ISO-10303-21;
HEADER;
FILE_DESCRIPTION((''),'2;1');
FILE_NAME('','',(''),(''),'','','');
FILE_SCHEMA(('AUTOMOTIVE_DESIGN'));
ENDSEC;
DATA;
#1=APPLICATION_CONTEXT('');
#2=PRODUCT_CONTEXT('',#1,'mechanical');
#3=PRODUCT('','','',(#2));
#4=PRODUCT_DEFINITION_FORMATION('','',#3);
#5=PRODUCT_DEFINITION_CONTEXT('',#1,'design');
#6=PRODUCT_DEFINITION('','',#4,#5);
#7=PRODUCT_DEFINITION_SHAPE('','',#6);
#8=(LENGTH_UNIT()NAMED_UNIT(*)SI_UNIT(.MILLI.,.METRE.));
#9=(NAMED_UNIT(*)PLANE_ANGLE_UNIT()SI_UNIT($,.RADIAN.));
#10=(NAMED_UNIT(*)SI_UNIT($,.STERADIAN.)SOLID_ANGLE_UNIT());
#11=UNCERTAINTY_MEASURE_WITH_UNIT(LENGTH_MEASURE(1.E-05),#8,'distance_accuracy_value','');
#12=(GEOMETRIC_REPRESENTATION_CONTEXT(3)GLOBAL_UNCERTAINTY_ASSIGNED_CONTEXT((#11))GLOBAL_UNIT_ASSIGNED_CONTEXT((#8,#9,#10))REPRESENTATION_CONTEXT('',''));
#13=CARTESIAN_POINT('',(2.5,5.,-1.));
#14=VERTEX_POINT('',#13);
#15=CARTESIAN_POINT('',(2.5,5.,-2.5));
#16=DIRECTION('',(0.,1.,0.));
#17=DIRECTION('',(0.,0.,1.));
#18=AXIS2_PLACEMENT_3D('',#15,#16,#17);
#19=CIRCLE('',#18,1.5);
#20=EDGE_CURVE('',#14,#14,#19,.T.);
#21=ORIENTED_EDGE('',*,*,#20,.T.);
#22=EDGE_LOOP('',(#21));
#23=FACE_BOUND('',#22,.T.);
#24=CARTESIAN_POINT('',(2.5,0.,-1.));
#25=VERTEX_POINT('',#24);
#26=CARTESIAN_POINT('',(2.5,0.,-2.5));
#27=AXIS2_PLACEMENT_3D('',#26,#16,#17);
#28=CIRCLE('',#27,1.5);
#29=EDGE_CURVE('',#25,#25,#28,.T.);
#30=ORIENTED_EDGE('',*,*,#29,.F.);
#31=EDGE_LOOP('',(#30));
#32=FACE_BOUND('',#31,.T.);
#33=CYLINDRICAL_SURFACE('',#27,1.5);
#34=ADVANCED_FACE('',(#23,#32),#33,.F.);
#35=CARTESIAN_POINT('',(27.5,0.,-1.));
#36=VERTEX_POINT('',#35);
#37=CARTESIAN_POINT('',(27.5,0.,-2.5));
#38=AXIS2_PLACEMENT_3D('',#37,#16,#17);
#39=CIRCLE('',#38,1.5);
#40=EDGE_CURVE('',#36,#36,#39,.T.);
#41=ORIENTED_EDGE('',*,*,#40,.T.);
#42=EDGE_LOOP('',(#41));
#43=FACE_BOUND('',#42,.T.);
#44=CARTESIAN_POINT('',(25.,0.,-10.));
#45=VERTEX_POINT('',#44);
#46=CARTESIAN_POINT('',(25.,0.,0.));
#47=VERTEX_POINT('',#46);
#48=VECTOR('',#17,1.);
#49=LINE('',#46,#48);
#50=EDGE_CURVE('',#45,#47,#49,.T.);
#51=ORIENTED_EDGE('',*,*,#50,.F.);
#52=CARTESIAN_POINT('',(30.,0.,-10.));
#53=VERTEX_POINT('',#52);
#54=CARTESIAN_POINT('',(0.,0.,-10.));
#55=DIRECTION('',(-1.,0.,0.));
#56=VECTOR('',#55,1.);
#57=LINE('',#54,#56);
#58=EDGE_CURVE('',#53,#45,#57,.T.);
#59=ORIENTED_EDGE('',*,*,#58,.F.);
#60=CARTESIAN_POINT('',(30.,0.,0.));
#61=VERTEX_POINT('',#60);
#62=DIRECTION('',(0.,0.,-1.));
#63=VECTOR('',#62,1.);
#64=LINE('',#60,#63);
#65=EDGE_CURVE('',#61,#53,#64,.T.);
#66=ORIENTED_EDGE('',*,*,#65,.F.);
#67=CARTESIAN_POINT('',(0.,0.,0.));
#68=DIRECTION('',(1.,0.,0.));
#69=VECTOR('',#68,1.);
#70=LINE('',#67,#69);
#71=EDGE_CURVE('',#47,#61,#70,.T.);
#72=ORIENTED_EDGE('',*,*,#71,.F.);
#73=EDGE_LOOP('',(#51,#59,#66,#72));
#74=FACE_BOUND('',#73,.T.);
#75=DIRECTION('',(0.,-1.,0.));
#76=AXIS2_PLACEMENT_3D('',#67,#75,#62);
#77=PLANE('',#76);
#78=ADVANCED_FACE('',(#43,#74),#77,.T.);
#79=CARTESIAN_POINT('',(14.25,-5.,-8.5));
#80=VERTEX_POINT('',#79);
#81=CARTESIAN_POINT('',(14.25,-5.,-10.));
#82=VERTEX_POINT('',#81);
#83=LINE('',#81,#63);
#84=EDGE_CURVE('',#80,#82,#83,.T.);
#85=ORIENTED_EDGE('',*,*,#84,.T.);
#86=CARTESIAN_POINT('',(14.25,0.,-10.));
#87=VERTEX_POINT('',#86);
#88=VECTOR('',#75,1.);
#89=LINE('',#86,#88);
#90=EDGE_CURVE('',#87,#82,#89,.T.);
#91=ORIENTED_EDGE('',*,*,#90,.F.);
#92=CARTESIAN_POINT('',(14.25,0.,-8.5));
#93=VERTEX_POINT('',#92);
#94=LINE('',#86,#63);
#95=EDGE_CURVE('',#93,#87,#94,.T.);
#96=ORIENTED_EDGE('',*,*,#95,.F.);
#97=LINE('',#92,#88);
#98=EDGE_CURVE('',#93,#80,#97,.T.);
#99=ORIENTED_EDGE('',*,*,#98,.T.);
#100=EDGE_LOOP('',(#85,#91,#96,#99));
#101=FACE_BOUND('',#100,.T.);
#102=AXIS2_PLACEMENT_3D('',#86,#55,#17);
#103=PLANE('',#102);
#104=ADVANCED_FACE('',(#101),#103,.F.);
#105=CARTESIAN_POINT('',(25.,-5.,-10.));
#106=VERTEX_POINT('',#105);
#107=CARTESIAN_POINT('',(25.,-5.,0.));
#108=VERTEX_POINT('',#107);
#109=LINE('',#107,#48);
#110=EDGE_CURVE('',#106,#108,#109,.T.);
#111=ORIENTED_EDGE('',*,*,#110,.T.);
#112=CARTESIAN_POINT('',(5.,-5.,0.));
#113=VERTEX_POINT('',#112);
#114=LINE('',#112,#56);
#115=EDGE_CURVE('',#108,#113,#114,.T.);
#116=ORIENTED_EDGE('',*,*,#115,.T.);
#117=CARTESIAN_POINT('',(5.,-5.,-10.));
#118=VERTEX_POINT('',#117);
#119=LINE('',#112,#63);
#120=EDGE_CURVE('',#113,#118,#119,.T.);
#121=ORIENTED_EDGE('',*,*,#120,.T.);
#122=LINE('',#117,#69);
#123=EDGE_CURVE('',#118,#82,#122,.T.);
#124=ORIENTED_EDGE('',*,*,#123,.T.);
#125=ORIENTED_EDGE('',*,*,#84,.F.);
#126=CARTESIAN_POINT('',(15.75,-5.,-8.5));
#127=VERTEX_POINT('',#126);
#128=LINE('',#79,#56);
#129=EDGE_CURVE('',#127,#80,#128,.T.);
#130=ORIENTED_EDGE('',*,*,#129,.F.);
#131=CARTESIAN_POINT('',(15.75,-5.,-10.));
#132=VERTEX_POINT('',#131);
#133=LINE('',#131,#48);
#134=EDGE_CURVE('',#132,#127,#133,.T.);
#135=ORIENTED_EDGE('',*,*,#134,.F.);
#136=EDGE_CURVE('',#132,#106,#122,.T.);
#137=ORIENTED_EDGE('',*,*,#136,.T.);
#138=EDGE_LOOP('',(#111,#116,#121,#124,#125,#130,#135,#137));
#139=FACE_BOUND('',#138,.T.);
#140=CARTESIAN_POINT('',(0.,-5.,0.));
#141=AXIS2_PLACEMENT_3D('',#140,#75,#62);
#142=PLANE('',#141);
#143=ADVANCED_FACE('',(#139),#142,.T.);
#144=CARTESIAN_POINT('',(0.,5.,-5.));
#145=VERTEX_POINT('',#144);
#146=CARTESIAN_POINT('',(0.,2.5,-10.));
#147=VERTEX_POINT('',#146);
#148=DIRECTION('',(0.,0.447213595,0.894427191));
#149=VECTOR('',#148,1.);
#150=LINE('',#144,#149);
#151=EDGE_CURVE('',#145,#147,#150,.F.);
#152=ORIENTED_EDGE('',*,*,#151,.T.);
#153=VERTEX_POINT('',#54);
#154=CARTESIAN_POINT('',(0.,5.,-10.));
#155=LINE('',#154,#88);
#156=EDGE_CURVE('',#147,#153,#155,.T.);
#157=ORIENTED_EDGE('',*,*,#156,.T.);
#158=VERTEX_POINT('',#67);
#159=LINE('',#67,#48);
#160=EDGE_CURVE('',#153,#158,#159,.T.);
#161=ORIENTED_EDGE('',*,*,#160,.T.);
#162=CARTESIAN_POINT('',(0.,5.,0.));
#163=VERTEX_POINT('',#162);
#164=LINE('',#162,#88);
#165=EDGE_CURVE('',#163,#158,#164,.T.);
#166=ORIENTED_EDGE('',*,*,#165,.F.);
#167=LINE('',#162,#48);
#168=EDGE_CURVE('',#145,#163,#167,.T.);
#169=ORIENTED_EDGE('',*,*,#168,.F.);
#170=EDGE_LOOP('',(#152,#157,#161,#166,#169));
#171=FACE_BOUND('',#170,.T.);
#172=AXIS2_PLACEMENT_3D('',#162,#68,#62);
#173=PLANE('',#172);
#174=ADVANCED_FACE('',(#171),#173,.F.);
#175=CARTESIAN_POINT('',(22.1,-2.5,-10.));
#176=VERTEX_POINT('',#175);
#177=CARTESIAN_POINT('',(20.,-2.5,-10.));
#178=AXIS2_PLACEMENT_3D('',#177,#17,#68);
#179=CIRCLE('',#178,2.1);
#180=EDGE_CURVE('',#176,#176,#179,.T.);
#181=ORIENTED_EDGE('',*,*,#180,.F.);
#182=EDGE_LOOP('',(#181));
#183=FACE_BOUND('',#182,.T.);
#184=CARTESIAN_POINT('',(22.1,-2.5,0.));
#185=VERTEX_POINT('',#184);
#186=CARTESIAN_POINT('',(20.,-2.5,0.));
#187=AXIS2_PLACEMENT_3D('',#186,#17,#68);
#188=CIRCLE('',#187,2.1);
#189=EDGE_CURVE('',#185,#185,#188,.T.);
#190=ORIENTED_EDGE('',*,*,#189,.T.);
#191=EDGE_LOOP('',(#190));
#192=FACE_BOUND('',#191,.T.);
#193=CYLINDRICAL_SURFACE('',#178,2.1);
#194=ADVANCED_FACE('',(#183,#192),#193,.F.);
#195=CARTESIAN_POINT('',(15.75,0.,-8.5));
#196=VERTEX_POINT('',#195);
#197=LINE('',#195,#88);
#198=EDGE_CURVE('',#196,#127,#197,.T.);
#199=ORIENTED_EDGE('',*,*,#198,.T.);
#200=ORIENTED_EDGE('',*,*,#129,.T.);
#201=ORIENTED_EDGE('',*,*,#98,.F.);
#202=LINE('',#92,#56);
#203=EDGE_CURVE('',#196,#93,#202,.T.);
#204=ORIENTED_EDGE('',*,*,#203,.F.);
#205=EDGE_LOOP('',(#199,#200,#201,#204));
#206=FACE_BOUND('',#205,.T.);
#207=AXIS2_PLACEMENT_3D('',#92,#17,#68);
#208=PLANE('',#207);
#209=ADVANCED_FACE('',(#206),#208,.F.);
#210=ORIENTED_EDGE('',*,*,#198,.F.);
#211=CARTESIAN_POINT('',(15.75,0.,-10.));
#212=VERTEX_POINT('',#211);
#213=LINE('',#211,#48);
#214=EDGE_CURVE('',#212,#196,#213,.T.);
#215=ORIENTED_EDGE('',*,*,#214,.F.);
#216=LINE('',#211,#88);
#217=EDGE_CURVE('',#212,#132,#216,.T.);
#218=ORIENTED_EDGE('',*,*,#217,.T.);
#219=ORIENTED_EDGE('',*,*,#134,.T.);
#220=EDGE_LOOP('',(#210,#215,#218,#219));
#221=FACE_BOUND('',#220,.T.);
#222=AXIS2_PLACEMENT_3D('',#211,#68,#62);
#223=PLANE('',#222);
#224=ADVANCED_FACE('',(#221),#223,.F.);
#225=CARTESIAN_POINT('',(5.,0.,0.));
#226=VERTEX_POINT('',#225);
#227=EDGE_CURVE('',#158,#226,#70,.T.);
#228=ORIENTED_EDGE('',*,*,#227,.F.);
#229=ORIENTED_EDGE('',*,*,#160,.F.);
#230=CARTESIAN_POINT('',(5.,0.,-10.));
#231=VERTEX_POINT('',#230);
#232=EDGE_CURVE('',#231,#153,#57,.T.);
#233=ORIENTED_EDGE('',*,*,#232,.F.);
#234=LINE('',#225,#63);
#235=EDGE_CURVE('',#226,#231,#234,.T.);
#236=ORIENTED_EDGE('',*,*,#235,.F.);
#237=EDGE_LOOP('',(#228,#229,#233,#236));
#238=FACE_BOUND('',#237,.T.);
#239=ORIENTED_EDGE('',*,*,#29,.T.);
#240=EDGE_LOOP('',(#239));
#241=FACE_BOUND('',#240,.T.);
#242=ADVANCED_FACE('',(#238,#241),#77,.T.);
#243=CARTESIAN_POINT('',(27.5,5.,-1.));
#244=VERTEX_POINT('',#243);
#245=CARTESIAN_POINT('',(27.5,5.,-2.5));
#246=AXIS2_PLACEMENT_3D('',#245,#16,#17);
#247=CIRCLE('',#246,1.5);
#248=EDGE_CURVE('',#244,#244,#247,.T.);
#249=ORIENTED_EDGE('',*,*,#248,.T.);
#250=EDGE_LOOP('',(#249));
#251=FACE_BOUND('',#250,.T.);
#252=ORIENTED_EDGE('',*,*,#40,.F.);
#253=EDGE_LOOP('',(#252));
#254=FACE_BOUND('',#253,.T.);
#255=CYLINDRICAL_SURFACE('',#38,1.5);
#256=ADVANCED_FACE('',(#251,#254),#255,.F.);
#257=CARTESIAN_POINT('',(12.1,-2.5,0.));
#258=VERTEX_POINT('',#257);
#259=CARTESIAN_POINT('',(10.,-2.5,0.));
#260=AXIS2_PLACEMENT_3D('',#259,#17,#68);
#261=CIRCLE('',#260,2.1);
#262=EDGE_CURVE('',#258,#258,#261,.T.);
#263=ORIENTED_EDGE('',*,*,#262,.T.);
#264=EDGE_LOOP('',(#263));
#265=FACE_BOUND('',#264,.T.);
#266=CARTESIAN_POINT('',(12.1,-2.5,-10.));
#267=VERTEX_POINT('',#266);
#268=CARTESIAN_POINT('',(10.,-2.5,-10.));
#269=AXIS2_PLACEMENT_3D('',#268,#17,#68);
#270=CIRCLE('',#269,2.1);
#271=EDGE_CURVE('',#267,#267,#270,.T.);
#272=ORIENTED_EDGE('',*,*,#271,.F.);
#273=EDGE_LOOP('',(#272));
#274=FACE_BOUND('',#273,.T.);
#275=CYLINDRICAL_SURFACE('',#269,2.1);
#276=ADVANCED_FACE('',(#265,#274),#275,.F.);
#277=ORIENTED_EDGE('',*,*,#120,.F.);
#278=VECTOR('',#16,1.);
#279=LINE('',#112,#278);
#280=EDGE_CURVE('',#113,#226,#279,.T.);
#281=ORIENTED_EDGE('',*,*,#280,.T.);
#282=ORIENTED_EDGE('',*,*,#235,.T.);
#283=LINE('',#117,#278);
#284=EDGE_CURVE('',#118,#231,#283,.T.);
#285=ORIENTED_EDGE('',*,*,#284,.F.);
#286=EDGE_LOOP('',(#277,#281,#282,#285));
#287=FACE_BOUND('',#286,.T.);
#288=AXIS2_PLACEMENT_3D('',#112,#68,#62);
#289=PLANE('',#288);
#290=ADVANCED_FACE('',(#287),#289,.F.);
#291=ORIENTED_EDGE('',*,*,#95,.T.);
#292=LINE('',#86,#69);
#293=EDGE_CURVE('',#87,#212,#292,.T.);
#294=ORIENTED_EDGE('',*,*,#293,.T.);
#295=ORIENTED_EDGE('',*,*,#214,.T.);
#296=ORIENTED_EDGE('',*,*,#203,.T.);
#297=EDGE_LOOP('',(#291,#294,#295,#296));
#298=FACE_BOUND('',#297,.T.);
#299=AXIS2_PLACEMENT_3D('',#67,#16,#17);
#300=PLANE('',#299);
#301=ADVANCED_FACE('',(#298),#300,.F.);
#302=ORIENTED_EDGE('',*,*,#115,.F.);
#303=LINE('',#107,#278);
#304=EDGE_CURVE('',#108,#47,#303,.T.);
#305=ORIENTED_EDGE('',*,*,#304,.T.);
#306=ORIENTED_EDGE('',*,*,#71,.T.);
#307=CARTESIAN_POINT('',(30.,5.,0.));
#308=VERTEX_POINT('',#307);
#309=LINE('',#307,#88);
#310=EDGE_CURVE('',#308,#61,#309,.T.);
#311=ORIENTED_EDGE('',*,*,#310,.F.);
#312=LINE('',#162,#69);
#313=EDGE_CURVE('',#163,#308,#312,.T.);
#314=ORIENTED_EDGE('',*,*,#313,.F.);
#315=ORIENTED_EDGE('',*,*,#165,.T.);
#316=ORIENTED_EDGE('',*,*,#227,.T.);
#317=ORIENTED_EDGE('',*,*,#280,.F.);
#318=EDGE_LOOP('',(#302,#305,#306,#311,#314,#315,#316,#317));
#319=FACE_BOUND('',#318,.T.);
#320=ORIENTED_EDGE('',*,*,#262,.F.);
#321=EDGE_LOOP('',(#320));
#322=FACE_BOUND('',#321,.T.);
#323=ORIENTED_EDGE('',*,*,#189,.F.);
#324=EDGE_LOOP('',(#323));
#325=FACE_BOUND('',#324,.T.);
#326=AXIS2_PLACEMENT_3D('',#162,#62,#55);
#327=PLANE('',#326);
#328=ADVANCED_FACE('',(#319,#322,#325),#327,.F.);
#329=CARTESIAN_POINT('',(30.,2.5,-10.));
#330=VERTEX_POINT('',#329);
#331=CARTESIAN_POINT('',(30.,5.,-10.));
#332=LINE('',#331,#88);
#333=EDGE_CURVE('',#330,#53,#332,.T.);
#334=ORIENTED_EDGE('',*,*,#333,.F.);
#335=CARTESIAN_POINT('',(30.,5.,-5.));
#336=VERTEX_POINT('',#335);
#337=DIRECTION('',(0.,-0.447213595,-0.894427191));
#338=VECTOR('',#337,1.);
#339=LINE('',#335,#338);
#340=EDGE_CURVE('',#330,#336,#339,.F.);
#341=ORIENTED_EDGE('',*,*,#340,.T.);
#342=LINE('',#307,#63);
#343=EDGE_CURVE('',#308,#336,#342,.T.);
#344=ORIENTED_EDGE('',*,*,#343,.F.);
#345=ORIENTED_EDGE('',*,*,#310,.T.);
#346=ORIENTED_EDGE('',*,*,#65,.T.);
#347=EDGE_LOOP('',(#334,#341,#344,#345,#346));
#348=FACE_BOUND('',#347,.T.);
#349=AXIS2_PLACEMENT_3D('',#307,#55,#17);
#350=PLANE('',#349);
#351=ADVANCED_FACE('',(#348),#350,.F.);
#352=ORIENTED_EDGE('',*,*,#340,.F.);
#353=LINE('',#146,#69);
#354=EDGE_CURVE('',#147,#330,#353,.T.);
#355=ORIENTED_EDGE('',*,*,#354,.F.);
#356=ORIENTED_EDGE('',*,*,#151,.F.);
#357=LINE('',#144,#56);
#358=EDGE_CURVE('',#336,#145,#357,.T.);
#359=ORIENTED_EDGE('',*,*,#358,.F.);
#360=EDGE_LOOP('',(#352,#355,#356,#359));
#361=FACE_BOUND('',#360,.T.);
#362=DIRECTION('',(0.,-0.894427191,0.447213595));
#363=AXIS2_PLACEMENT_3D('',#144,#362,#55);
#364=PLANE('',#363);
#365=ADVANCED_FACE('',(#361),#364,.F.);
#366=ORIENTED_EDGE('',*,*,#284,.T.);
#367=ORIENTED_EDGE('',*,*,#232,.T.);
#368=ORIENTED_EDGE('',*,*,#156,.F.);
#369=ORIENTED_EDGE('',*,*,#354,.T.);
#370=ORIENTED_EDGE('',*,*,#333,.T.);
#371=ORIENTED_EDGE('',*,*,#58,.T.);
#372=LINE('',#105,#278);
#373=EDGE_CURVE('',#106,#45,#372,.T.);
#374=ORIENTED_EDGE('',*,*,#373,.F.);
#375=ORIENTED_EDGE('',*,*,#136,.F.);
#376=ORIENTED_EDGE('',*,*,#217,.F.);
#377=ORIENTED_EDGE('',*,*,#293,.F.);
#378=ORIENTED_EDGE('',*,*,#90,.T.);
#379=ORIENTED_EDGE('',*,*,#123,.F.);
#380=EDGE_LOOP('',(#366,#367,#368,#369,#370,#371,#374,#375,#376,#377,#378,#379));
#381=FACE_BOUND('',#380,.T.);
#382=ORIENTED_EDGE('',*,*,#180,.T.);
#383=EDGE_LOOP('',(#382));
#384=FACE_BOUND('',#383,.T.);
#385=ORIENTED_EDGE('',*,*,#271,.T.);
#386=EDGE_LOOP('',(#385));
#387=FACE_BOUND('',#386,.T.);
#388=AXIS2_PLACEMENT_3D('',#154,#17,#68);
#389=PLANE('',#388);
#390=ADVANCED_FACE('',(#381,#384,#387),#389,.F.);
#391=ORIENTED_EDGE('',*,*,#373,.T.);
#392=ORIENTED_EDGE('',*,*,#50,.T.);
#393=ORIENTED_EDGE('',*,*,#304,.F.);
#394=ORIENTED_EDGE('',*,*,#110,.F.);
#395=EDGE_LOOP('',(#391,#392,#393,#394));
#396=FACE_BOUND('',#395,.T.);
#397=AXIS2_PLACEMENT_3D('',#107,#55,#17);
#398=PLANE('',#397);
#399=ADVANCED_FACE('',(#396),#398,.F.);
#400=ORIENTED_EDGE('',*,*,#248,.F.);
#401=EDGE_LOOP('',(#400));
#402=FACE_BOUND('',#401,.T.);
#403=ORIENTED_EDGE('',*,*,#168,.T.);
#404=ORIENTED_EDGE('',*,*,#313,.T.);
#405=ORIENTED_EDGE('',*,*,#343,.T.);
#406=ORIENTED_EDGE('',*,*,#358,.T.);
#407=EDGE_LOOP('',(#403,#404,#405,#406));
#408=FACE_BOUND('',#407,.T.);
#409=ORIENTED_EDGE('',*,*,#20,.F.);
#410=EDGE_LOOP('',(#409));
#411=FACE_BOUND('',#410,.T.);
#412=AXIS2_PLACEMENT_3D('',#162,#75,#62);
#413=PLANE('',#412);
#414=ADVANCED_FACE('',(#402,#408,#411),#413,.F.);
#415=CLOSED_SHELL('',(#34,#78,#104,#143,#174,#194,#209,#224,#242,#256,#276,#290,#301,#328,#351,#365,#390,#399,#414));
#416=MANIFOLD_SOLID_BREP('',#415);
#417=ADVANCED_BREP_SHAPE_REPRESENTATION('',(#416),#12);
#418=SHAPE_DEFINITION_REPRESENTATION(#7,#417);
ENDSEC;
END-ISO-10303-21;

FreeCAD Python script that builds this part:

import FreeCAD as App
import Part
import Sketcher
Q = App.Units.Quantity


def edges_at(feature, points):
    """Names of the edges that pass closest to the given points."""
    edges = feature.Shape.Edges
    near = lambda p: min(range(len(edges)), key=lambda i: edges[i].distToShape(Part.Vertex(*p))[0])
    return sorted({f"Edge{near(p) + 1}" for p in points})


def add_polygon(sketch, points):
    """Adds a closed chain of lines whose ends are joined by coincident constraints."""
    first, n = sketch.GeometryCount, len(points)
    for a, b in zip(points, points[1:] + points[:1]):
        sketch.addGeometry(Part.LineSegment(App.Vector(*a, 0), App.Vector(*b, 0)), False)
    for i in range(n):
        sketch.addConstraint(Sketcher.Constraint("Coincident", first + i, 2, first + (i + 1) % n, 1))

doc = App.newDocument("Part")
body = doc.addObject("PartDesign::Body", "Body")

# Sketch on XZ plane
sketch1 = body.newObject("Sketcher::SketchObject", "Sketch")
sketch1.AttachmentSupport = (doc.getObject("XZ_Plane"), [""])
sketch1.MapMode = "FlatFace"
add_polygon(sketch1, [(0, -10), (0, 0), (30, 0), (30, -10)])  # lines 0-3
sketch1.addConstraint([
    Sketcher.Constraint("Vertical", 0),
    Sketcher.Constraint("Horizontal", 1),
    Sketcher.Constraint("Vertical", 2),
    Sketcher.Constraint("Horizontal", 3),
    Sketcher.Constraint("Coincident", 0, 2, -1, 1),
    Sketcher.Constraint("DistanceX", 1, 1, 1, 2, Q("30 mm")),
    Sketcher.Constraint("DistanceY", 0, 1, 0, 2, Q("10 mm")),
])
pad1 = body.newObject("PartDesign::Pad", "Pad")
pad1.Profile = sketch1
pad1.Length = 5
pad1.Reversed = True

# Sketch on XZ plane
sketch2 = body.newObject("Sketcher::SketchObject", "Sketch001")
sketch2.AttachmentSupport = (doc.getObject("XZ_Plane"), [""])
sketch2.MapMode = "FlatFace"
add_polygon(sketch2, [(5, 0), (5, -10), (25, -10), (25, 0)])  # lines 0-3
sketch2.addConstraint([
    Sketcher.Constraint("Vertical", 0),
    Sketcher.Constraint("Horizontal", 1),
    Sketcher.Constraint("Vertical", 2),
    Sketcher.Constraint("Horizontal", 3),
    Sketcher.Constraint("PointOnObject", 2, 2, -1),
    Sketcher.Constraint("DistanceX", 1, 1, 1, 2, Q("20 mm")),
    Sketcher.Constraint("DistanceY", 0, 2, 0, 1, Q("10 mm")),
    Sketcher.Constraint("DistanceX", -1, 1, 0, 2, Q("5 mm")),
])
pad2 = body.newObject("PartDesign::Pad", "Pad001")
pad2.Profile = sketch2
pad2.Length = 5

# Sketch on XY plane
sketch3 = body.newObject("Sketcher::SketchObject", "Sketch002")
sketch3.AttachmentSupport = (doc.getObject("XY_Plane"), [""])
sketch3.MapMode = "FlatFace"
sketch3.addGeometry(Part.Circle(App.Vector(20, -2.5, 0), App.Vector(0, 0, 1), 2.1), False)
sketch3.addConstraint([
    Sketcher.Constraint("Diameter", 0, Q("4.2 mm")),
    Sketcher.Constraint("DistanceX", -1, 1, 0, 3, Q("20 mm")),
    Sketcher.Constraint("DistanceY", 0, 3, -1, 1, Q("2.5 mm")),
])
pocket1 = body.newObject("PartDesign::Pocket", "Pocket")
pocket1.Profile = sketch3
pocket1.Length = 10
doc.recompute()

linearpattern = body.newObject("PartDesign::LinearPattern", "LinearPattern")
linearpattern.Originals = [pocket1]
linearpattern.Direction = (doc.getObject("X_Axis"), [""])
linearpattern.Mode = "offset"
linearpattern.Offset = 10
linearpattern.Occurrences = 2
linearpattern.Reversed = True
body.Tip = linearpattern

# Sketch on XZ plane
sketch4 = body.newObject("Sketcher::SketchObject", "Sketch003")
sketch4.AttachmentSupport = (doc.getObject("XZ_Plane"), [""])
sketch4.MapMode = "FlatFace"
sketch4.AttachmentOffset = App.Placement(App.Vector(0, 0, -5), App.Rotation())
sketch4.addGeometry(Part.Circle(App.Vector(27.5, -2.5, 0), App.Vector(0, 0, 1), 1.5), False)
sketch4.addConstraint([
    Sketcher.Constraint("Diameter", 0, Q("3 mm")),
    Sketcher.Constraint("DistanceX", -1, 1, 0, 3, Q("27.5 mm")),
    Sketcher.Constraint("DistanceY", 0, 3, -1, 1, Q("2.5 mm")),
])
pocket2 = body.newObject("PartDesign::Pocket", "Pocket001")
pocket2.Profile = sketch4
pocket2.Length = 5
pocket2.Reversed = True
doc.recompute()

linearpattern2 = body.newObject("PartDesign::LinearPattern", "LinearPattern001")
linearpattern2.Originals = [pocket2]
linearpattern2.Direction = (doc.getObject("X_Axis"), [""])
linearpattern2.Mode = "offset"
linearpattern2.Offset = 25
linearpattern2.Occurrences = 2
linearpattern2.Reversed = True
body.Tip = linearpattern2

# Sketch on XZ plane
sketch5 = body.newObject("Sketcher::SketchObject", "Sketch004")
sketch5.AttachmentSupport = (doc.getObject("XZ_Plane"), [""])
sketch5.MapMode = "FlatFace"
sketch5.AttachmentOffset = App.Placement(App.Vector(0, 0, 5), App.Rotation())
add_polygon(sketch5, [(14.2, -8.5), (14.2, -10), (15.8, -10), (15.8, -8.5)])  # lines 0-3
sketch5.addConstraint([
    Sketcher.Constraint("Vertical", 0),
    Sketcher.Constraint("Horizontal", 1),
    Sketcher.Constraint("Vertical", 2),
    Sketcher.Constraint("Horizontal", 3),
    Sketcher.Constraint("Equal", 3, 0),
    Sketcher.Constraint("DistanceX", 1, 1, 1, 2, Q("1.5 mm")),
    Sketcher.Constraint("DistanceY", 0, 2, -1, 1, Q("10 mm")),
    Sketcher.Constraint("DistanceX", -1, 1, 0, 2, Q("14.25 mm")),
])
pocket3 = body.newObject("PartDesign::Pocket", "Pocket002")
pocket3.Profile = sketch5
pocket3.Length = 5
doc.recompute()

chamfer = body.newObject("PartDesign::Chamfer", "Chamfer")
chamfer.Base = (pocket3, edges_at(pocket3, [(15, 5, -10)]))
chamfer.ChamferType = "Two distances"
chamfer.Size = 2.5
chamfer.Size2 = 5

doc.recompute()
